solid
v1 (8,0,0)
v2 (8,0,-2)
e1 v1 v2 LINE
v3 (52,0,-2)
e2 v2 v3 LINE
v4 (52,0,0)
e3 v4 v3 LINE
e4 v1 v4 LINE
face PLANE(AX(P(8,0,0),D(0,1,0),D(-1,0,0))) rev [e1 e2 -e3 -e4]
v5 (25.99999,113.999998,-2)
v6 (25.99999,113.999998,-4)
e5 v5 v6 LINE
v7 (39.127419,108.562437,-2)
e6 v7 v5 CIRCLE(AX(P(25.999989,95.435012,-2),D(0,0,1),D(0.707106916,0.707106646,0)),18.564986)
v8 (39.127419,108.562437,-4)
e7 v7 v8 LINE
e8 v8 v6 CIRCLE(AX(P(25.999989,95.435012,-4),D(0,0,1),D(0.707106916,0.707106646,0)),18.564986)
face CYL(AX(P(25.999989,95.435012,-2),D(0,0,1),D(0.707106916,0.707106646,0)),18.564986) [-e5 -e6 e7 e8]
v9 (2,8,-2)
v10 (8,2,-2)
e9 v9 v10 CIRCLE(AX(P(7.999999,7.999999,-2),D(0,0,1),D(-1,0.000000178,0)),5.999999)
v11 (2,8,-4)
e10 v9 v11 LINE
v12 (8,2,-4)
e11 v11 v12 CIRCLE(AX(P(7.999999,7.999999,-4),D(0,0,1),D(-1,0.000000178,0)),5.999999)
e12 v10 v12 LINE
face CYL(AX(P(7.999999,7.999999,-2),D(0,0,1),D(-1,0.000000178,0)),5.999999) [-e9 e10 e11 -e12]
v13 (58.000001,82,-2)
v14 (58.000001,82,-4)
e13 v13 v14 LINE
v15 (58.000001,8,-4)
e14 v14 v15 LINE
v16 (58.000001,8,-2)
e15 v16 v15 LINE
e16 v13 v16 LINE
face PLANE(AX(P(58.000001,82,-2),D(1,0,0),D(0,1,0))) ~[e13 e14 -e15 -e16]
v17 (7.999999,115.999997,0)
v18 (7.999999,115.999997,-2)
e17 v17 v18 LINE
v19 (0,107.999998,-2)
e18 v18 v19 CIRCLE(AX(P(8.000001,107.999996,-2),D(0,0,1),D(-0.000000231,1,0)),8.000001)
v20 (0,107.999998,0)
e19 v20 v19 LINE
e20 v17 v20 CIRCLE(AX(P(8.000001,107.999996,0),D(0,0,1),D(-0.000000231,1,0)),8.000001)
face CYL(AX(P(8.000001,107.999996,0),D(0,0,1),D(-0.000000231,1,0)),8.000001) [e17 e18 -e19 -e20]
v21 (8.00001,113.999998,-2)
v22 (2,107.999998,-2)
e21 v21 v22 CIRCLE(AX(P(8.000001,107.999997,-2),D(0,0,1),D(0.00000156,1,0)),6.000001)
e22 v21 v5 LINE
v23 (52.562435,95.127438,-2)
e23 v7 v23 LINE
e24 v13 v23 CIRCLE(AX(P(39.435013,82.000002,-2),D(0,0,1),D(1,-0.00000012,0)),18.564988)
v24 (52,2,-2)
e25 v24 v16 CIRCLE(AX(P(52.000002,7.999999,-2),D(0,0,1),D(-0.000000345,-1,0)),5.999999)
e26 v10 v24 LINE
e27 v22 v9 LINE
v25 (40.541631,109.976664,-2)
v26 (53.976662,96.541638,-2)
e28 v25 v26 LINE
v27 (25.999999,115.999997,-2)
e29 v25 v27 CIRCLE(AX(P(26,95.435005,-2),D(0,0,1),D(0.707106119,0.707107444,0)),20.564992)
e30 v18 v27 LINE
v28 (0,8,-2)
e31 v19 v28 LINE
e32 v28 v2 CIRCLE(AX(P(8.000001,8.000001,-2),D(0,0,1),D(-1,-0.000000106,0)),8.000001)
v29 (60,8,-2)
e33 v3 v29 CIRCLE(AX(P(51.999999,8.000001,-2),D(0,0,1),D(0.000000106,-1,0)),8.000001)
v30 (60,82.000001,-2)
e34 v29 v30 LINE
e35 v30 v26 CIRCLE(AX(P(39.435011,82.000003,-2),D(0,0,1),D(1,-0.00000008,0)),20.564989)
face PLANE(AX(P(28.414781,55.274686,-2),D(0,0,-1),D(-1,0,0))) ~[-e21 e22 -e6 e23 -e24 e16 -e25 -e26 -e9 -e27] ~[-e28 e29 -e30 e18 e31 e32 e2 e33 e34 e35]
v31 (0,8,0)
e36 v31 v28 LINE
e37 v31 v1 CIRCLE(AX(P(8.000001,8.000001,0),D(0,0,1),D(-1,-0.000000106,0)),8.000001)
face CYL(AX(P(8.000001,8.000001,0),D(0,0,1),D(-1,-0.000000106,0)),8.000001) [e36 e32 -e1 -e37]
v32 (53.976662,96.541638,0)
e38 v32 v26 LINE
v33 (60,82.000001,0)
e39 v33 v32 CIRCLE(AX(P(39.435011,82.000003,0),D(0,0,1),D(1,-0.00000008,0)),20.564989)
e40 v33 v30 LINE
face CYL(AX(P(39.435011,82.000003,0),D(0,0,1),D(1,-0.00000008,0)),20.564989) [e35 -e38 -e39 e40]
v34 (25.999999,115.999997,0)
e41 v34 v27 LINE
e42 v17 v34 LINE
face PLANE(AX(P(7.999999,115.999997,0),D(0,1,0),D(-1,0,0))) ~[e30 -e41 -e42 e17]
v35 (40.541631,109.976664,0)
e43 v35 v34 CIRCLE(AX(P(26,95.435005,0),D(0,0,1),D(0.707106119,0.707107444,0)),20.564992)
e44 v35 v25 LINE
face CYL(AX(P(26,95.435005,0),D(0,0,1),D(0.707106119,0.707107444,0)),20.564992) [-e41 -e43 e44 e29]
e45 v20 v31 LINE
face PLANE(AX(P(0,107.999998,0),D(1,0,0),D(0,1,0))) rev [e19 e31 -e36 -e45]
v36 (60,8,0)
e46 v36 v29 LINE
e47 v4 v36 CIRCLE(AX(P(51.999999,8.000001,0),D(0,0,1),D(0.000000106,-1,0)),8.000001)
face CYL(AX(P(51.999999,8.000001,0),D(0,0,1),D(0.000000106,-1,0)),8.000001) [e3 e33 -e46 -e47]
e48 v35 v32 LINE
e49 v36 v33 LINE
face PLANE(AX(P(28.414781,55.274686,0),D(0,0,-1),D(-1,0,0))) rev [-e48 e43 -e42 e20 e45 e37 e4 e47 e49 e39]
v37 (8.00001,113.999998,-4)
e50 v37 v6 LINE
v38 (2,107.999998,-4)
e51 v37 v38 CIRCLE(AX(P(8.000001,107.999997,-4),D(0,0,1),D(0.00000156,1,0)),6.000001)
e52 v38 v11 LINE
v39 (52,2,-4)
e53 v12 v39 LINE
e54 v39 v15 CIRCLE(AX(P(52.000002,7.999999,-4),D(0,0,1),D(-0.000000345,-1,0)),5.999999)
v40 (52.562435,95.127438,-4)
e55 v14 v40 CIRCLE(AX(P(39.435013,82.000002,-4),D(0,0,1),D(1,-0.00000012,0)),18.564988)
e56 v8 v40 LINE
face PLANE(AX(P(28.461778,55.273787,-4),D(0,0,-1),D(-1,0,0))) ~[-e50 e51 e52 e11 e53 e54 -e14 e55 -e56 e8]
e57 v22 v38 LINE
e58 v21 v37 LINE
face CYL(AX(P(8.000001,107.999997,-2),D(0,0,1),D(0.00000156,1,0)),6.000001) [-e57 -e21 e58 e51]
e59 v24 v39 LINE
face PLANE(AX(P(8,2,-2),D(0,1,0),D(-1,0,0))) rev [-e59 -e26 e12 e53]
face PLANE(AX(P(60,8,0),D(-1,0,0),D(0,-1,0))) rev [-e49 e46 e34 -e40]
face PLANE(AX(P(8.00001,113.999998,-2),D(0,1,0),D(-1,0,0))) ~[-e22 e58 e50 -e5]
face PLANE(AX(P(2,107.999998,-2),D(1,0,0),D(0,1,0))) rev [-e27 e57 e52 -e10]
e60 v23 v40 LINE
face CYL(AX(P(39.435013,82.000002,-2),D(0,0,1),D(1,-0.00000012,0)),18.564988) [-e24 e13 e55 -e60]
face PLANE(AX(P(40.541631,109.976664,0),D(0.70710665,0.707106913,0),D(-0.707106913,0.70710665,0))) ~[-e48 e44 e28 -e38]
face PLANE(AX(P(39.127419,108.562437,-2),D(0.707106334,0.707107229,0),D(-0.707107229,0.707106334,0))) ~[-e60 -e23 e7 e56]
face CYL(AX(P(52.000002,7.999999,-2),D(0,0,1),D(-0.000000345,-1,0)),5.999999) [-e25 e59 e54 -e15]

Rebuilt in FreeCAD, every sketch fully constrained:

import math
import FreeCAD as App
import Part
import Sketcher
Q = App.Units.Quantity

doc = App.newDocument("Part")
params = doc.addObject("Spreadsheet::Sheet", "Params")
for row, (alias, value) in enumerate([
    ("sketch1_radius", "8.000001 mm"),
    ("sketch1_radius2", "8.000001 mm"),
    ("sketch1_radius3", "8.000001 mm"),
    ("sketch1_width", "18 mm"),
    ("sketch1_width2", "44 mm"),
    ("pad1_length", "2 mm"),
    ("sketch2_radius", "6.000001 mm"),
    ("sketch2_radius2", "5.999999 mm"),
    ("sketch2_radius3", "5.999999 mm"),
    ("sketch2_width", "44 mm"),
    ("sketch2_height", "99.999998 mm"),
    ("pad2_length", "2 mm"),
], start=1):
    params.set(f"A{row}", alias)
    params.set(f"B{row}", "=" + value)
    params.setAlias(f"B{row}", alias)

body = doc.addObject("PartDesign::Body", "Body")

sketch1 = body.newObject("Sketcher::SketchObject", "Sketch")
sketch1.AttachmentSupport = (doc.getObject("XY_Plane"), [""])
sketch1.MapMode = "FlatFace"
sketch1.addGeometry([
    Part.LineSegment(App.Vector(60, 8, 0), App.Vector(60, 82.000001, 0)),
    Part.ArcOfCircle(Part.Circle(App.Vector(39.435011, 82.000003, 0), App.Vector(0, 0, 1), 20.564989), math.radians(-0.000005), math.radians(44.999969)),
    Part.LineSegment(App.Vector(53.976662, 96.541638, 0), App.Vector(40.541631, 109.976664, 0)),
    Part.ArcOfCircle(Part.Circle(App.Vector(26, 95.435005, 0), App.Vector(0, 0, 1), 20.564992), math.radians(45.000054), math.radians(90.000001)),
    Part.LineSegment(App.Vector(25.999999, 115.999997, 0), App.Vector(7.999999, 115.999997, 0)),
    Part.ArcOfCircle(Part.Circle(App.Vector(8.000001, 107.999996, 0), App.Vector(0, 0, 1), 8.000001), math.radians(90.000013), math.radians(179.999987)),
    Part.LineSegment(App.Vector(0, 107.999998, 0), App.Vector(0, 8, 0)),
    Part.ArcOfCircle(Part.Circle(App.Vector(8.000001, 8.000001, 0), App.Vector(0, 0, 1), 8.000001), math.radians(-179.999994), math.radians(-90.000006)),
    Part.LineSegment(App.Vector(8, 0, 0), App.Vector(52, 0, 0)),
    Part.ArcOfCircle(Part.Circle(App.Vector(51.999999, 8.000001, 0), App.Vector(0, 0, 1), 8.000001), math.radians(-89.999994), math.radians(-0.000006)),
], False)
sketch1.addConstraint([
    Sketcher.Constraint("Coincident", 0, 2, 1, 1),
    Sketcher.Constraint("Coincident", 1, 2, 2, 1),
    Sketcher.Constraint("Coincident", 2, 2, 3, 1),
    Sketcher.Constraint("Coincident", 3, 2, 4, 1),
    Sketcher.Constraint("Coincident", 4, 2, 5, 1),
    Sketcher.Constraint("Coincident", 5, 2, 6, 1),
    Sketcher.Constraint("Coincident", 6, 2, 7, 1),
    Sketcher.Constraint("Coincident", 7, 2, 8, 1),
    Sketcher.Constraint("Coincident", 8, 2, 9, 1),
    Sketcher.Constraint("Coincident", 9, 2, 0, 1),
    Sketcher.Constraint("Vertical", 0),
    Sketcher.Constraint("Horizontal", 4),
    Sketcher.Constraint("Vertical", 6),
    Sketcher.Constraint("Horizontal", 8),
    Sketcher.Constraint("PointOnObject", 5, 2, -2),
    Sketcher.Constraint("PointOnObject", 7, 2, -1),
    Sketcher.Constraint("Radius", 5, Q("8.000001 mm")),
    Sketcher.Constraint("Radius", 7, Q("8.000001 mm")),
    Sketcher.Constraint("Radius", 9, Q("8.000001 mm")),
    Sketcher.Constraint("DistanceX", 4, 2, 4, 1, Q("18 mm")),
    Sketcher.Constraint("DistanceX", 8, 1, 8, 2, Q("44 mm")),
    Sketcher.Constraint("DistanceY", 0, 1, 0, 2, Q("74.000001 mm")),
    Sketcher.Constraint("DistanceY", 6, 2, 6, 1, Q("99.999998 mm")),
    Sketcher.Constraint("Distance", 2, Q("19 mm")),
    Sketcher.Constraint("DistanceX", -1, 1, 3, 3, Q("26 mm")),
    Sketcher.Constraint("DistanceX", -1, 1, 9, 3, Q("51.999999 mm")),
    Sketcher.Constraint("DistanceY", -1, 1, 0, 2, Q("82.000001 mm")),
    Sketcher.Constraint("DistanceX", -1, 1, 3, 2, Q("25.999999 mm")),
    Sketcher.Constraint("DistanceY", -1, 1, 5, 2, Q("107.999998 mm")),
    Sketcher.Constraint("DistanceX", -1, 1, 7, 2, Q("8 mm")),
    Sketcher.Constraint("DistanceY", 7, 3, 1, 3, Q("74.000002 mm")),
    Sketcher.Constraint("DistanceY", 5, 2, 4, 2, Q("7.999999 mm")),
    Sketcher.Constraint("Radius", 1, Q("20.564989 mm")),
    Sketcher.Constraint("Radius", 3, Q("20.564992 mm")),
    Sketcher.Constraint("DistanceY", -1, 1, 1, 2, Q("96.541638 mm")),
])
sketch1.setExpression("Constraints[16]", "Params.sketch1_radius")
sketch1.setExpression("Constraints[17]", "Params.sketch1_radius2")
sketch1.setExpression("Constraints[18]", "Params.sketch1_radius3")
sketch1.setExpression("Constraints[19]", "Params.sketch1_width")
sketch1.setExpression("Constraints[20]", "Params.sketch1_width2")
pad1 = body.newObject("PartDesign::Pad", "Pad")
pad1.Profile = sketch1
pad1.setExpression("Length", "Params.pad1_length")

sketch2 = body.newObject("Sketcher::SketchObject", "Sketch001")
sketch2.AttachmentSupport = (doc.getObject("XY_Plane"), [""])
sketch2.MapMode = "FlatFace"
sketch2.AttachmentOffset = App.Placement(App.Vector(0, 0, 2), App.Rotation())
sketch2.addGeometry([
    Part.ArcOfCircle(Part.Circle(App.Vector(8.000001, 107.999997, 0), App.Vector(0, 0, 1), 6.000001), math.radians(89.999911), math.radians(179.999994)),
    Part.LineSegment(App.Vector(2, 107.999998, 0), App.Vector(2, 8, 0)),
    Part.ArcOfCircle(Part.Circle(App.Vector(7.999999, 7.999999, 0), App.Vector(0, 0, 1), 5.999999), math.radians(179.99999), math.radians(270.00001)),
    Part.LineSegment(App.Vector(8, 2, 0), App.Vector(52, 2, 0)),
    Part.ArcOfCircle(Part.Circle(App.Vector(52.000002, 7.999999, 0), App.Vector(0, 0, 1), 5.999999), math.radians(-90.00002), math.radians(0.00001)),
    Part.LineSegment(App.Vector(58.000001, 8, 0), App.Vector(58.000001, 82, 0)),
    Part.ArcOfCircle(Part.Circle(App.Vector(39.435013, 82.000002, 0), App.Vector(0, 0, 1), 18.564988), math.radians(-0.000007), math.radians(45.00003)),
    Part.LineSegment(App.Vector(52.562435, 95.127438, 0), App.Vector(39.127419, 108.562437, 0)),
    Part.ArcOfCircle(Part.Circle(App.Vector(25.999989, 95.435012, 0), App.Vector(0, 0, 1), 18.564986), math.radians(44.999989), math.radians(89.999997)),
    Part.LineSegment(App.Vector(25.99999, 113.999998, 0), App.Vector(8.00001, 113.999998, 0)),
], False)
sketch2.addConstraint([
    Sketcher.Constraint("Coincident", 0, 2, 1, 1),
    Sketcher.Constraint("Coincident", 1, 2, 2, 1),
    Sketcher.Constraint("Coincident", 2, 2, 3, 1),
    Sketcher.Constraint("Coincident", 3, 2, 4, 1),
    Sketcher.Constraint("Coincident", 4, 2, 5, 1),
    Sketcher.Constraint("Coincident", 5, 2, 6, 1),
    Sketcher.Constraint("Coincident", 6, 2, 7, 1),
    Sketcher.Constraint("Coincident", 7, 2, 8, 1),
    Sketcher.Constraint("Coincident", 8, 2, 9, 1),
    Sketcher.Constraint("Coincident", 9, 2, 0, 1),
    Sketcher.Constraint("Vertical", 1),
    Sketcher.Constraint("Horizontal", 3),
    Sketcher.Constraint("Vertical", 5),
    Sketcher.Constraint("Horizontal", 9),
    Sketcher.Constraint("Radius", 0, Q("6.000001 mm")),
    Sketcher.Constraint("Radius", 2, Q("5.999999 mm")),
    Sketcher.Constraint("Radius", 4, Q("5.999999 mm")),
    Sketcher.Constraint("DistanceX", 3, 1, 3, 2, Q("44 mm")),
    Sketcher.Constraint("DistanceY", 1, 2, 1, 1, Q("99.999998 mm")),
    Sketcher.Constraint("DistanceY", 5, 1, 5, 2, Q("74 mm")),
    Sketcher.Constraint("DistanceX", -1, 1, 0, 3, Q("8.000001 mm")),
    Sketcher.Constraint("DistanceY", -1, 1, 2, 3, Q("7.999999 mm")),
    Sketcher.Constraint("DistanceY", -1, 1, 0, 2, Q("107.999998 mm")),
    Sketcher.Constraint("DistanceX", -1, 1, 2, 2, Q("8 mm")),
    Sketcher.Constraint("DistanceX", -1, 1, 4, 2, Q("58.000001 mm")),
    Sketcher.Constraint("DistanceY", -1, 1, 4, 2, Q("8 mm")),
    Sketcher.Constraint("DistanceY", -1, 1, 9, 2, Q("113.999998 mm")),
    Sketcher.Constraint("Radius", 6, Q("18.564988 mm")),
    Sketcher.Constraint("Radius", 8, Q("18.564986 mm")),
    Sketcher.Constraint("DistanceY", 6, 2, 7, 2, Q("13.434999 mm")),
    Sketcher.Constraint("DistanceX", 9, 2, 9, 1, Q("17.99998 mm")),
    Sketcher.Constraint("Distance", 7, Q("18.99997 mm")),
    Sketcher.Constraint("DistanceX", -1, 1, 8, 3, Q("25.999989 mm")),
    Sketcher.Constraint("DistanceX", -1, 1, 7, 2, Q("39.127419 mm")),
    Sketcher.Constraint("DistanceX", -1, 1, 8, 2, Q("25.99999 mm")),
])
sketch2.setExpression("Constraints[14]", "Params.sketch2_radius")
sketch2.setExpression("Constraints[15]", "Params.sketch2_radius2")
sketch2.setExpression("Constraints[16]", "Params.sketch2_radius3")
sketch2.setExpression("Constraints[17]", "Params.sketch2_width")
sketch2.setExpression("Constraints[18]", "Params.sketch2_height")
pad2 = body.newObject("PartDesign::Pad", "Pad001")
pad2.Profile = sketch2
pad2.setExpression("Length", "Params.pad2_length")
body2 = doc.addObject("PartDesign::Body", "Body001")
doc.recompute()

mirroring = doc.addObject("Part::Mirroring", "Mirroring")
mirroring.Source = body
mirroring.Base = App.Vector(0, 0, 0)
mirroring.Normal = App.Vector(0, 0, 1)
body2.BaseFeature = mirroring
doc.recompute()
body.Visibility = False
mirroring.Visibility = False

doc.recompute()
